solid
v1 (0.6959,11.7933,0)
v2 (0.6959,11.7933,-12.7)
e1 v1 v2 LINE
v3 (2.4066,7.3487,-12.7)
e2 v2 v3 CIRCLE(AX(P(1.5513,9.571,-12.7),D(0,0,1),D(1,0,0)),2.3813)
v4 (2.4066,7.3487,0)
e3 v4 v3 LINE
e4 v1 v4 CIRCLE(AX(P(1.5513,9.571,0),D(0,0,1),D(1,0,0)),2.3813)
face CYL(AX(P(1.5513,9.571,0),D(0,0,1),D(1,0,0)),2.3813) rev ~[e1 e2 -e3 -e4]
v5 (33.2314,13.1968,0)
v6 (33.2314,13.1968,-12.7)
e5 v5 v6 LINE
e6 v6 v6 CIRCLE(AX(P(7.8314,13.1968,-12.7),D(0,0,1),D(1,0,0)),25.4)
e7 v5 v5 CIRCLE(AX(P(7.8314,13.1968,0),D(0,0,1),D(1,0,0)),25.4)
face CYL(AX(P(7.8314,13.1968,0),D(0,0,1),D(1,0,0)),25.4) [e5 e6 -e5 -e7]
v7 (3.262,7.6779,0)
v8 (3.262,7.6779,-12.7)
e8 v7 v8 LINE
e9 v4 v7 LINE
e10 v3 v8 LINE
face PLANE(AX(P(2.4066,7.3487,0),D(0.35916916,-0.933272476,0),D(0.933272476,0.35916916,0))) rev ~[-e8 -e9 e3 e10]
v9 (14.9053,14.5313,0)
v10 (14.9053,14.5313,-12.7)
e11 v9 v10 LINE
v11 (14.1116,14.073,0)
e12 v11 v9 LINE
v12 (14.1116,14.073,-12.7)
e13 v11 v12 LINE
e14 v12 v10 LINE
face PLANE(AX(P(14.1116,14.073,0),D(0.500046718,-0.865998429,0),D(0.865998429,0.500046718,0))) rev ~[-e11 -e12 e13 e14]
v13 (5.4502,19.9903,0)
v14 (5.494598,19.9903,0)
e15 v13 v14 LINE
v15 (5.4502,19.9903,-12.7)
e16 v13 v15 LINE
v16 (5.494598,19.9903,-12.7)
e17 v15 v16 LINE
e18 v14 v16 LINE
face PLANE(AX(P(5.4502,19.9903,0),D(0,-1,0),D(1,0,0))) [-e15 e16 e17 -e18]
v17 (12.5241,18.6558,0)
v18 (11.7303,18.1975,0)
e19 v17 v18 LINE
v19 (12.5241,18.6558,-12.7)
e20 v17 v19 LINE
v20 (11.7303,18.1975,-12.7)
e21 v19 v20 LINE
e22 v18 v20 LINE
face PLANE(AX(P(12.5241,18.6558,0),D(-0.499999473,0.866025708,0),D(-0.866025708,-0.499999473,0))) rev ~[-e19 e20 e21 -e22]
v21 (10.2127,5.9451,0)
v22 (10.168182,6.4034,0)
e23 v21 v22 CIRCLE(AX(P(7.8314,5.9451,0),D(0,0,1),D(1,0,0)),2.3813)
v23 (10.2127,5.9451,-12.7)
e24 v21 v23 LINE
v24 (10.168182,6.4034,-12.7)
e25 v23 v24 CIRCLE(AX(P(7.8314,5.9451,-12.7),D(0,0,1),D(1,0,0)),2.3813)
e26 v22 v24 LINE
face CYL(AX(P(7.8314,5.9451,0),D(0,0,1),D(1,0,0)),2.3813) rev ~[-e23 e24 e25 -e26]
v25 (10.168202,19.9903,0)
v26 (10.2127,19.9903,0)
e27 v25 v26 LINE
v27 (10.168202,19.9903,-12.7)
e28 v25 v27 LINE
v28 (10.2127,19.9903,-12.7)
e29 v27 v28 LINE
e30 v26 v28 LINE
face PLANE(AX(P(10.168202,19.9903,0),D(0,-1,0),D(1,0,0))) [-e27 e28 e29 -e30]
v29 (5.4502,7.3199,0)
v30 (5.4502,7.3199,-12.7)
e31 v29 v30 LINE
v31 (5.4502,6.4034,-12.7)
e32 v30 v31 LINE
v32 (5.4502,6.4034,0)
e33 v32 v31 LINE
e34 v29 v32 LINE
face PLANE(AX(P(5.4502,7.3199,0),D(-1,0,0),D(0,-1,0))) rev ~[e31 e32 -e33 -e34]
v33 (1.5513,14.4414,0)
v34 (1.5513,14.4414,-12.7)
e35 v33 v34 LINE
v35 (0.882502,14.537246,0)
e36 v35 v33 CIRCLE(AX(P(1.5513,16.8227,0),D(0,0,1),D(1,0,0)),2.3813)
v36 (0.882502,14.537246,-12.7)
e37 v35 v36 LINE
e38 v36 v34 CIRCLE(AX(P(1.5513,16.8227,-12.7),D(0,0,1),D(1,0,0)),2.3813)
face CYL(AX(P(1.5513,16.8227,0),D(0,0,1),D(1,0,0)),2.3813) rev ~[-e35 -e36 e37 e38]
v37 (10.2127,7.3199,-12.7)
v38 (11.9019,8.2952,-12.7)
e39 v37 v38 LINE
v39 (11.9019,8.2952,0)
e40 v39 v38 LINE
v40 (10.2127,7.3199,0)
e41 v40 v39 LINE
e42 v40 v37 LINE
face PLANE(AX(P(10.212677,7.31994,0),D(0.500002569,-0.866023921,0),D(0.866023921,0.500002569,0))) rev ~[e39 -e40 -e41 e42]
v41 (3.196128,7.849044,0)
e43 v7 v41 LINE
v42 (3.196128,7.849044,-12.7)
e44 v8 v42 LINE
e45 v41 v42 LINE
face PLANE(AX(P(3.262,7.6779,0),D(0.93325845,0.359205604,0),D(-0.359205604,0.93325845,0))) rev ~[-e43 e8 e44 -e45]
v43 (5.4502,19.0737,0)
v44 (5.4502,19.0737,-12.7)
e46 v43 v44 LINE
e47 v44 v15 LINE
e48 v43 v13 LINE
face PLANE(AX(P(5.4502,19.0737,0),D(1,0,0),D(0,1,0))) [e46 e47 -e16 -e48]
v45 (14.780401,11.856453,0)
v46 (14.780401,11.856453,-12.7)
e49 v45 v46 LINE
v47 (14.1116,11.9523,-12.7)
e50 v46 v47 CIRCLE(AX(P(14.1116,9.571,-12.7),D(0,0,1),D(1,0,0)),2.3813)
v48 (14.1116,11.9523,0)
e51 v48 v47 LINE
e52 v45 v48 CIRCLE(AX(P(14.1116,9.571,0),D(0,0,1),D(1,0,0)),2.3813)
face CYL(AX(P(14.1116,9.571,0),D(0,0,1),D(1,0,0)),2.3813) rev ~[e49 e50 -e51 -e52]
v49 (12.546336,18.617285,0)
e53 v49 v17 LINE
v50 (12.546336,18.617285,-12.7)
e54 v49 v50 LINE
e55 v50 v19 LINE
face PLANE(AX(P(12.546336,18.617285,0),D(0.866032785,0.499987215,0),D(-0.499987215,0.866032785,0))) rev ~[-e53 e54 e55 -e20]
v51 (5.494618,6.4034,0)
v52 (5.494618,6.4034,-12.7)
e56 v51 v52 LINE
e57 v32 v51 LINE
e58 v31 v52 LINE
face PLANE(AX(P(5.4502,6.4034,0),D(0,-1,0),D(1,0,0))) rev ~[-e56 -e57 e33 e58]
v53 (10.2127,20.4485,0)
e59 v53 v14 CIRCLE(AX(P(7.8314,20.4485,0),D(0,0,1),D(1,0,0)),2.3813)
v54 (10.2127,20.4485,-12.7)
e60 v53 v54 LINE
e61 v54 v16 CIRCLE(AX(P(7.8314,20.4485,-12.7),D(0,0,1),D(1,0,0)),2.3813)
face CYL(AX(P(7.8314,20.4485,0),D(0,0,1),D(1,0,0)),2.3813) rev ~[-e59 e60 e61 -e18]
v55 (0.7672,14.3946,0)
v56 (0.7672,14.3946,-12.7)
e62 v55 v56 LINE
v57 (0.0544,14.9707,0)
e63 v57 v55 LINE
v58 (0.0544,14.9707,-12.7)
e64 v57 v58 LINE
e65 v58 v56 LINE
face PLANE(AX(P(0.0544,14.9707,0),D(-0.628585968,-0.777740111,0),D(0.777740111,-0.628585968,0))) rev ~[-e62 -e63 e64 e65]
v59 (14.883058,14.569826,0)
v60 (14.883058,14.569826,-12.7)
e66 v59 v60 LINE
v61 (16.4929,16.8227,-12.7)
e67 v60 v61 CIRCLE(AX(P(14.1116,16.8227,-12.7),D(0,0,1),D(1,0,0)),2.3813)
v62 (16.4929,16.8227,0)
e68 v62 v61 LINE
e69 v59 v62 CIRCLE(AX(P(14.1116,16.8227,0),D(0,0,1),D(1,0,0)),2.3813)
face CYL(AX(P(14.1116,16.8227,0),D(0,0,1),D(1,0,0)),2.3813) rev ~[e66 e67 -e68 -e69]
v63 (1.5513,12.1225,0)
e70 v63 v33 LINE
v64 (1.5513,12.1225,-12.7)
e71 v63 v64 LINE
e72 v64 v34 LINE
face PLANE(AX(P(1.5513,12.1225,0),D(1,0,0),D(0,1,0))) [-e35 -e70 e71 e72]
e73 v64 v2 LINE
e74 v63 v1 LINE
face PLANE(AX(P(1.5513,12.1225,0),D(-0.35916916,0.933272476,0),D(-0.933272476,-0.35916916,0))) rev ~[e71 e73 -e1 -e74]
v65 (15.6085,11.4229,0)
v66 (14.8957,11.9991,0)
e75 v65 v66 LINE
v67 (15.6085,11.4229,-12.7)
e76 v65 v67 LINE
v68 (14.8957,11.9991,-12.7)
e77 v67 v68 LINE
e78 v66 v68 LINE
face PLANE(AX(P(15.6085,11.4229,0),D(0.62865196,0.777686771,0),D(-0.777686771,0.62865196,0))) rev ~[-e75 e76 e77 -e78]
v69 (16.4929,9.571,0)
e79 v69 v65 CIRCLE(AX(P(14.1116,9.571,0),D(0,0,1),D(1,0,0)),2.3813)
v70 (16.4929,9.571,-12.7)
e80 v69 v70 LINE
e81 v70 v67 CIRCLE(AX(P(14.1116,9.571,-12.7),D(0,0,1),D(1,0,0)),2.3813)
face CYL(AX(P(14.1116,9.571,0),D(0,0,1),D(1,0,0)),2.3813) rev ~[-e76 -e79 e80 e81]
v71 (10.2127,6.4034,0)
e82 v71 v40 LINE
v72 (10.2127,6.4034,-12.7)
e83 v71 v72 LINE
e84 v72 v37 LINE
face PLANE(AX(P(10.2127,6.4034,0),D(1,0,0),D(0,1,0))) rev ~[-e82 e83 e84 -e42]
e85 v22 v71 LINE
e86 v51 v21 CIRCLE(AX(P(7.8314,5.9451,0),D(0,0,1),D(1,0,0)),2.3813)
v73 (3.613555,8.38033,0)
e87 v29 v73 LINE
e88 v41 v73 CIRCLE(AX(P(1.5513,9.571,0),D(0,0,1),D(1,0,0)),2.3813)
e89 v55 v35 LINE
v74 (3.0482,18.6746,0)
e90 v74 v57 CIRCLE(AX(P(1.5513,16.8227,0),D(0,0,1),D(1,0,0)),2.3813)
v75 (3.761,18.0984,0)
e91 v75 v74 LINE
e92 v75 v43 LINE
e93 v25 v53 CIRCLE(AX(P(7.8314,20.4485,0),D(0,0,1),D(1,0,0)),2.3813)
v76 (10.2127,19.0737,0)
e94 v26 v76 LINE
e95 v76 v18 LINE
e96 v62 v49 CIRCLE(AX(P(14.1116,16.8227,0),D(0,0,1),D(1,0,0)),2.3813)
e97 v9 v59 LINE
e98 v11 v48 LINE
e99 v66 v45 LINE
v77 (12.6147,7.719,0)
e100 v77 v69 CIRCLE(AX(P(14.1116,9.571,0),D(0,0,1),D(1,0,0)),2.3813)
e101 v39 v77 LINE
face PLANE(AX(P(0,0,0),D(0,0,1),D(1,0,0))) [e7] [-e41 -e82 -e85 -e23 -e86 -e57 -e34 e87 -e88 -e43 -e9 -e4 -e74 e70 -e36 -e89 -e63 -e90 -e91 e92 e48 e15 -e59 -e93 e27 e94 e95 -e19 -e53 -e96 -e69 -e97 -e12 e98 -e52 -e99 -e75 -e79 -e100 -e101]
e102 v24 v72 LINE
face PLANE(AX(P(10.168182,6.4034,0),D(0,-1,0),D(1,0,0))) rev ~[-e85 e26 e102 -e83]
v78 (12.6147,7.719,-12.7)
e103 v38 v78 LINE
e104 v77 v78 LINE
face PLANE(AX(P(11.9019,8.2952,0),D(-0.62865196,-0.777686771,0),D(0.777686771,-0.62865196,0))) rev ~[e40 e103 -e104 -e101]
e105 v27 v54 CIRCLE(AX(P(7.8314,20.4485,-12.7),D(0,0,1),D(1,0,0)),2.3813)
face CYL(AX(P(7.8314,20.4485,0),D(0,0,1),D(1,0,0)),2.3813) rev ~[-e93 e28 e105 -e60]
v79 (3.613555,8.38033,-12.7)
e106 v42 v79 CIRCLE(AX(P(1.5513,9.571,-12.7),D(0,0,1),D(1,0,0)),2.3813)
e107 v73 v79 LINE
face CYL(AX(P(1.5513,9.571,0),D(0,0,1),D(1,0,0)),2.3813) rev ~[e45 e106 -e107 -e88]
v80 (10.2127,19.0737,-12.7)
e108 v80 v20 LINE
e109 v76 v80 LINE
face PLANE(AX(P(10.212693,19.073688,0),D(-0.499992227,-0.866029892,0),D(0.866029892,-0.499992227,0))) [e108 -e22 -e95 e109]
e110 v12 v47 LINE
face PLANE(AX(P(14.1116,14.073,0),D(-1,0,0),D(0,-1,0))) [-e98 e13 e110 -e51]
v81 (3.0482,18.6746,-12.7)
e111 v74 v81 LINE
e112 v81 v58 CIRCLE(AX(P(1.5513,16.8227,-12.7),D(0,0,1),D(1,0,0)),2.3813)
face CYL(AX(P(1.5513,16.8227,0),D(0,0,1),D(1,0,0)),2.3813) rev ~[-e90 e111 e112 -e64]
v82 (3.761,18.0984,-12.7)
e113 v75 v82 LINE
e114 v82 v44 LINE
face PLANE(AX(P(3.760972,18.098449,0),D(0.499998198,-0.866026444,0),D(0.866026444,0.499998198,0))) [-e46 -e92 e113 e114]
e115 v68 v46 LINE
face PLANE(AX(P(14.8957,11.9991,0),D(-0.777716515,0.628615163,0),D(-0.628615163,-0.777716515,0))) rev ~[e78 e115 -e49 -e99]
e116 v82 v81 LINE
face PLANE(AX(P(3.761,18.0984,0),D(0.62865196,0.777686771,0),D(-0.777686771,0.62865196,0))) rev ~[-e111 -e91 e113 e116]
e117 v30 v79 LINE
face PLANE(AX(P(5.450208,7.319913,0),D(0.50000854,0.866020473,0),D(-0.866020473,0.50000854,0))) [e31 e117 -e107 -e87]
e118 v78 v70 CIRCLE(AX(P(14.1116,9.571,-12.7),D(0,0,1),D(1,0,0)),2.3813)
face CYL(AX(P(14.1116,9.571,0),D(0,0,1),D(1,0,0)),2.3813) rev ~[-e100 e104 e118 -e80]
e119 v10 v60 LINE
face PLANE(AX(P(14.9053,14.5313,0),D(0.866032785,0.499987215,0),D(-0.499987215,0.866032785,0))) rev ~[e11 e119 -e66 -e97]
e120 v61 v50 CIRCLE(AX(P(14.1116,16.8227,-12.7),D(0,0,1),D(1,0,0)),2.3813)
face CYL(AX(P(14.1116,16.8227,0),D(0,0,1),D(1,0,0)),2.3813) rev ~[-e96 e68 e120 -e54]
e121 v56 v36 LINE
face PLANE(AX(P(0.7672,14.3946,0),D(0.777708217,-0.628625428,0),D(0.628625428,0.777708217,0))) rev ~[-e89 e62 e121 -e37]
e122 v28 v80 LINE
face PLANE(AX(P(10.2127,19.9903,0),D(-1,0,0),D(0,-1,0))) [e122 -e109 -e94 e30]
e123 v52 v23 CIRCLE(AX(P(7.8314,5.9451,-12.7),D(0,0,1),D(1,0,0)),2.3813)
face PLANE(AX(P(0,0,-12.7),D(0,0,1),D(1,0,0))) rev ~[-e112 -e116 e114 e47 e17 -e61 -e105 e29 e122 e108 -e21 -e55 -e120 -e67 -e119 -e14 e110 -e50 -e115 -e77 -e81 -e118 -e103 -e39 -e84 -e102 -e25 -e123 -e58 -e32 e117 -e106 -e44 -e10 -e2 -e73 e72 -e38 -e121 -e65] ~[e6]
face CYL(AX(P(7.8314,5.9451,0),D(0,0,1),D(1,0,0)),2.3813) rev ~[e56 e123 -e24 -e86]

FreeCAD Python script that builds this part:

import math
import FreeCAD as App
import Part
import Sketcher

V = App.Vector
Q = App.Units.Quantity

doc = App.newDocument("Part")
body = doc.addObject("PartDesign::Body", "Body")

# Sketch on XY plane
sketch1 = body.newObject("Sketcher::SketchObject", "Sketch")
sketch1.AttachmentSupport = (doc.getObject("XY_Plane"), [""])
sketch1.MapMode = "FlatFace"
sketch1.addGeometry(Part.Circle(V(7.8314, 13.1968, 0), V(0, 0, 1), 25.4), False)
sketch1.addGeometry(Part.LineSegment(V(10.2127, 19.9903, 0), V(10.2127, 19.0737, 0)), False)
sketch1.addGeometry(Part.LineSegment(V(10.212693, 19.073688, 0), V(11.730307, 18.197512, 0)), False)
sketch1.addGeometry(Part.LineSegment(V(11.7303, 18.1975, 0), V(12.5241, 18.6558, 0)), False)
sketch1.addGeometry(Part.LineSegment(V(12.5241, 18.6558, 0), V(12.546336, 18.617285, 0)), False)
sketch1.addGeometry(Part.ArcOfCircle(Part.Circle(V(14.1116, 16.8227, 0), V(0, 0, 1), 2.3813), math.radians(-71.097117), math.radians(131.095425)), False)
sketch1.addGeometry(Part.LineSegment(V(14.883058, 14.569826, 0), V(14.9053, 14.5313, 0)), False)
sketch1.addGeometry(Part.LineSegment(V(14.9053, 14.5313, 0), V(14.1116, 14.073, 0)), False)
sketch1.addGeometry(Part.LineSegment(V(14.1116, 14.073, 0), V(14.1116, 11.9523, 0)), False)
sketch1.addGeometry(Part.ArcOfCircle(Part.Circle(V(14.1116, 9.571, 0), V(0, 0, 1), 2.3813), math.radians(73.68874), math.radians(90)), False)
sketch1.addGeometry(Part.LineSegment(V(14.780401, 11.856453, 0), V(14.8957, 11.9991, 0)), False)
sketch1.addGeometry(Part.LineSegment(V(14.8957, 11.9991, 0), V(15.6085, 11.4229, 0)), False)
sketch1.addGeometry(Part.ArcOfCircle(Part.Circle(V(14.1116, 9.571, 0), V(0, 0, 1), 2.3813), math.radians(-128.947269), math.radians(51.051218)), False)
sketch1.addGeometry(Part.LineSegment(V(12.6147, 7.719, 0), V(11.9019, 8.2952, 0)), False)
sketch1.addGeometry(Part.LineSegment(V(11.901891, 8.295215, 0), V(10.212677, 7.31994, 0)), False)
sketch1.addGeometry(Part.LineSegment(V(10.2127, 7.3199, 0), V(10.2127, 6.4034, 0)), False)
sketch1.addGeometry(Part.LineSegment(V(10.2127, 6.4034, 0), V(10.168182, 6.4034, 0)), False)
sketch1.addGeometry(Part.ArcOfCircle(Part.Circle(V(7.8314, 5.9451, 0), V(0, 0, 1), 2.3813), math.radians(168.903741), math.radians(371.096259)), False)
sketch1.addGeometry(Part.LineSegment(V(5.494618, 6.4034, 0), V(5.4502, 6.4034, 0)), False)
sketch1.addGeometry(Part.LineSegment(V(5.4502, 6.4034, 0), V(5.4502, 7.3199, 0)), False)
sketch1.addGeometry(Part.LineSegment(V(5.450208, 7.319913, 0), V(3.613555, 8.38033, 0)), False)
sketch1.addGeometry(Part.ArcOfCircle(Part.Circle(V(1.5513, 9.571, 0), V(0, 0, 1), 2.3813), math.radians(-46.312335), math.radians(-30.000565)), False)
sketch1.addGeometry(Part.LineSegment(V(3.196128, 7.849044, 0), V(3.262, 7.6779, 0)), False)
sketch1.addGeometry(Part.LineSegment(V(3.262, 7.6779, 0), V(2.4066, 7.3487, 0)), False)
sketch1.addGeometry(Part.ArcOfCircle(Part.Circle(V(1.5513, 9.571, 0), V(0, 0, 1), 2.3813), math.radians(111.05254), math.radians(291.050295)), False)
sketch1.addGeometry(Part.LineSegment(V(0.6959, 11.7933, 0), V(1.5513, 12.1225, 0)), False)
sketch1.addGeometry(Part.LineSegment(V(1.5513, 12.1225, 0), V(1.5513, 14.4414, 0)), False)
sketch1.addGeometry(Part.ArcOfCircle(Part.Circle(V(1.5513, 16.8227, 0), V(0, 0, 1), 2.3813), math.radians(-106.311197), math.radians(-90)), False)
sketch1.addGeometry(Part.LineSegment(V(0.882502, 14.537246, 0), V(0.7672, 14.3946, 0)), False)
sketch1.addGeometry(Part.LineSegment(V(0.7672, 14.3946, 0), V(0.0544, 14.9707, 0)), False)
sketch1.addGeometry(Part.ArcOfCircle(Part.Circle(V(1.5513, 16.8227, 0), V(0, 0, 1), 2.3813), math.radians(51.051218), math.radians(231.052731)), False)
sketch1.addGeometry(Part.LineSegment(V(3.0482, 18.6746, 0), V(3.761, 18.0984, 0)), False)
sketch1.addGeometry(Part.LineSegment(V(3.760972, 18.098449, 0), V(5.450191, 19.073715, 0)), False)
sketch1.addGeometry(Part.LineSegment(V(5.4502, 19.0737, 0), V(5.4502, 19.9903, 0)), False)
sketch1.addGeometry(Part.LineSegment(V(5.4502, 19.9903, 0), V(5.494598, 19.9903, 0)), False)
sketch1.addGeometry(Part.ArcOfCircle(Part.Circle(V(7.8314, 20.4485, 0), V(0, 0, 1), 2.3813), math.radians(-11.093807), math.radians(191.093807)), False)
sketch1.addGeometry(Part.LineSegment(V(10.168202, 19.9903, 0), V(10.2127, 19.9903, 0)), False)
sketch1.addConstraint(Sketcher.Constraint("Coincident", 1, 2, 2, 1))
sketch1.addConstraint(Sketcher.Constraint("Coincident", 2, 2, 3, 1))
sketch1.addConstraint(Sketcher.Constraint("Coincident", 3, 2, 4, 1))
sketch1.addConstraint(Sketcher.Constraint("Coincident", 4, 2, 5, 2))
sketch1.addConstraint(Sketcher.Constraint("Coincident", 5, 1, 6, 1))
sketch1.addConstraint(Sketcher.Constraint("Coincident", 6, 2, 7, 1))
sketch1.addConstraint(Sketcher.Constraint("Coincident", 7, 2, 8, 1))
sketch1.addConstraint(Sketcher.Constraint("Coincident", 8, 2, 9, 2))
sketch1.addConstraint(Sketcher.Constraint("Coincident", 9, 1, 10, 1))
sketch1.addConstraint(Sketcher.Constraint("Coincident", 10, 2, 11, 1))
sketch1.addConstraint(Sketcher.Constraint("Tangent", 11, 2, 12, 2))
sketch1.addConstraint(Sketcher.Constraint("Tangent", 12, 1, 13, 1))
sketch1.addConstraint(Sketcher.Constraint("Coincident", 13, 2, 14, 1))
sketch1.addConstraint(Sketcher.Constraint("Coincident", 14, 2, 15, 1))
sketch1.addConstraint(Sketcher.Constraint("Coincident", 15, 2, 16, 1))
sketch1.addConstraint(Sketcher.Constraint("Coincident", 16, 2, 17, 2))
sketch1.addConstraint(Sketcher.Constraint("Coincident", 17, 1, 18, 1))
sketch1.addConstraint(Sketcher.Constraint("Coincident", 18, 2, 19, 1))
sketch1.addConstraint(Sketcher.Constraint("Coincident", 19, 2, 20, 1))
sketch1.addConstraint(Sketcher.Constraint("Coincident", 20, 2, 21, 2))
sketch1.addConstraint(Sketcher.Constraint("Coincident", 21, 1, 22, 1))
sketch1.addConstraint(Sketcher.Constraint("Coincident", 22, 2, 23, 1))
sketch1.addConstraint(Sketcher.Constraint("Tangent", 23, 2, 24, 2))
sketch1.addConstraint(Sketcher.Constraint("Tangent", 24, 1, 25, 1))
sketch1.addConstraint(Sketcher.Constraint("Coincident", 25, 2, 26, 1))
sketch1.addConstraint(Sketcher.Constraint("Coincident", 26, 2, 27, 2))
sketch1.addConstraint(Sketcher.Constraint("Coincident", 27, 1, 28, 1))
sketch1.addConstraint(Sketcher.Constraint("Coincident", 28, 2, 29, 1))
sketch1.addConstraint(Sketcher.Constraint("Tangent", 29, 2, 30, 2))
sketch1.addConstraint(Sketcher.Constraint("Tangent", 30, 1, 31, 1))
sketch1.addConstraint(Sketcher.Constraint("Coincident", 31, 2, 32, 1))
sketch1.addConstraint(Sketcher.Constraint("Coincident", 32, 2, 33, 1))
sketch1.addConstraint(Sketcher.Constraint("Coincident", 33, 2, 34, 1))
sketch1.addConstraint(Sketcher.Constraint("Coincident", 34, 2, 35, 2))
sketch1.addConstraint(Sketcher.Constraint("Coincident", 35, 1, 36, 1))
sketch1.addConstraint(Sketcher.Constraint("Coincident", 36, 2, 1, 1))
sketch1.addConstraint(Sketcher.Constraint("Vertical", 1))
sketch1.addConstraint(Sketcher.Constraint("Vertical", 8))
sketch1.addConstraint(Sketcher.Constraint("Vertical", 15))
sketch1.addConstraint(Sketcher.Constraint("Horizontal", 16))
sketch1.addConstraint(Sketcher.Constraint("Horizontal", 18))
sketch1.addConstraint(Sketcher.Constraint("Vertical", 19))
sketch1.addConstraint(Sketcher.Constraint("Vertical", 26))
sketch1.addConstraint(Sketcher.Constraint("Vertical", 33))
sketch1.addConstraint(Sketcher.Constraint("Horizontal", 34))
sketch1.addConstraint(Sketcher.Constraint("Horizontal", 36))
sketch1.addConstraint(Sketcher.Constraint("Coincident", 12, 3, 9, 3))
sketch1.addConstraint(Sketcher.Constraint("Coincident", 24, 3, 21, 3))
sketch1.addConstraint(Sketcher.Constraint("Coincident", 30, 3, 27, 3))
sketch1.addConstraint(Sketcher.Constraint("Equal", 5, 9))
sketch1.addConstraint(Sketcher.Constraint("Equal", 9, 12))
sketch1.addConstraint(Sketcher.Constraint("Equal", 12, 17))
sketch1.addConstraint(Sketcher.Constraint("Equal", 17, 21))
sketch1.addConstraint(Sketcher.Constraint("Equal", 21, 24))
sketch1.addConstraint(Sketcher.Constraint("Equal", 24, 27))
sketch1.addConstraint(Sketcher.Constraint("Equal", 27, 30))
sketch1.addConstraint(Sketcher.Constraint("Equal", 30, 35))
sketch1.addConstraint(Sketcher.Constraint("Perpendicular", 3, 4))
sketch1.addConstraint(Sketcher.Constraint("Parallel", 4, 6))
sketch1.addConstraint(Sketcher.Constraint("Perpendicular", 6, 7))
sketch1.addConstraint(Sketcher.Constraint("Perpendicular", 10, 11))
sketch1.addConstraint(Sketcher.Constraint("Parallel", 11, 13))
sketch1.addConstraint(Sketcher.Constraint("Parallel", 7, 14))
sketch1.addConstraint(Sketcher.Constraint("Parallel", 2, 20))
sketch1.addConstraint(Sketcher.Constraint("Perpendicular", 22, 23))
sketch1.addConstraint(Sketcher.Constraint("Parallel", 23, 25))
sketch1.addConstraint(Sketcher.Constraint("Perpendicular", 13, 28))
sketch1.addConstraint(Sketcher.Constraint("Perpendicular", 28, 29))
sketch1.addConstraint(Sketcher.Constraint("Parallel", 29, 31))
sketch1.addConstraint(Sketcher.Constraint("Parallel", 14, 32))
sketch1.addConstraint(Sketcher.Constraint("Horizontal", 12, 3, 21, 3))
sketch1.addConstraint(Sketcher.Constraint("Horizontal", 5, 3, 27, 3))
sketch1.addConstraint(Sketcher.Constraint("Horizontal", 16, 2, 17, 1))
sketch1.addConstraint(Sketcher.Constraint("Horizontal", 14, 2, 19, 2))
sketch1.addConstraint(Sketcher.Constraint("Horizontal", 1, 2, 32, 2))
sketch1.addConstraint(Sketcher.Constraint("Horizontal", 34, 2, 35, 1))
sketch1.addConstraint(Sketcher.Constraint("Vertical", 5, 3, 9, 3))
sketch1.addConstraint(Sketcher.Constraint("Vertical", 0, 3, 17, 3))
sketch1.addConstraint(Sketcher.Constraint("Vertical", 24, 3, 27, 3))
sketch1.addConstraint(Sketcher.Constraint("Vertical", 17, 3, 35, 3))
sketch1.addConstraint(Sketcher.Constraint("Vertical", 12, 3, 7, 2))
sketch1.addConstraint(Sketcher.Constraint("Vertical", 1, 2, 14, 2))
sketch1.addConstraint(Sketcher.Constraint("Vertical", 30, 3, 25, 2))
sketch1.addConstraint(Sketcher.Constraint("Vertical", 19, 2, 32, 2))
sketch1.addConstraint(Sketcher.Constraint("Vertical", 17, 1, 34, 2))
sketch1.addConstraint(Sketcher.Constraint("Equal", 16, 18))
sketch1.addConstraint(Sketcher.Constraint("Equal", 1, 15))
sketch1.addConstraint(Sketcher.Constraint("Equal", 4, 6))
sketch1.addConstraint(Sketcher.Constraint("Equal", 3, 7))
sketch1.addConstraint(Sketcher.Constraint("Equal", 7, 11))
sketch1.addConstraint(Sketcher.Constraint("Equal", 11, 13))
sketch1.addConstraint(Sketcher.Constraint("Equal", 10, 22))
sketch1.addConstraint(Sketcher.Constraint("Equal", 23, 25))
sketch1.addConstraint(Sketcher.Constraint("Equal", 22, 28))
sketch1.addConstraint(Sketcher.Constraint("Equal", 29, 31))
sketch1.addConstraint(Sketcher.Constraint("Equal", 14, 32))
sketch1.addConstraint(Sketcher.Constraint("Diameter", 0, Q("2 in")))
sketch1.addConstraint(Sketcher.Constraint("Radius", 5, Q("0.093752 in")))
sketch1.addConstraint(Sketcher.Constraint("Angle", 2, Q("-29.9995 deg")))
sketch1.addConstraint(Sketcher.Constraint("Angle", 3, Q("30 deg")))
sketch1.addConstraint(Sketcher.Constraint("DistanceX", 4, 2, 5, 1, Q("0.092 in")))
sketch1.addConstraint(Sketcher.Constraint("DistanceX", 17, 3, 16, 2, Q("0.092 in")))
sketch1.addConstraint(Sketcher.Constraint("DistanceX", 18, 2, 15, 2, Q("0.1875 in")))
sketch1.addConstraint(Sketcher.Constraint("DistanceY", 1, 2, 1, 1, Q("0.9166 mm")))
sketch1.addConstraint(Sketcher.Constraint("DistanceY", 9, 3, 5, 3, Q("0.2855 in")))
sketch1.addConstraint(Sketcher.Constraint("DistanceY", 17, 3, 0, 3, Q("0.2855 in")))
sketch1.addConstraint(Sketcher.Constraint("DistanceY", 0, 3, 35, 3, Q("0.2855 in")))
sketch1.addConstraint(Sketcher.Constraint("Distance", 3, Q("0.9166 mm")))
sketch1.addConstraint(Sketcher.Constraint("DistanceX", -1, 1, 30, 1, Q("0.12 in")))
sketch1.addConstraint(Sketcher.Constraint("Angle", 11, Q("-38.9507 deg")))
sketch1.addConstraint(Sketcher.Constraint("DistanceY", -1, 1, 5, 3, Q("0.6623 in")))
pad1 = body.newObject("PartDesign::Pad", "Pad")
pad1.Profile = sketch1
pad1.Length = Q("0.5 in")
pad1.Reversed = True

doc.recompute()
